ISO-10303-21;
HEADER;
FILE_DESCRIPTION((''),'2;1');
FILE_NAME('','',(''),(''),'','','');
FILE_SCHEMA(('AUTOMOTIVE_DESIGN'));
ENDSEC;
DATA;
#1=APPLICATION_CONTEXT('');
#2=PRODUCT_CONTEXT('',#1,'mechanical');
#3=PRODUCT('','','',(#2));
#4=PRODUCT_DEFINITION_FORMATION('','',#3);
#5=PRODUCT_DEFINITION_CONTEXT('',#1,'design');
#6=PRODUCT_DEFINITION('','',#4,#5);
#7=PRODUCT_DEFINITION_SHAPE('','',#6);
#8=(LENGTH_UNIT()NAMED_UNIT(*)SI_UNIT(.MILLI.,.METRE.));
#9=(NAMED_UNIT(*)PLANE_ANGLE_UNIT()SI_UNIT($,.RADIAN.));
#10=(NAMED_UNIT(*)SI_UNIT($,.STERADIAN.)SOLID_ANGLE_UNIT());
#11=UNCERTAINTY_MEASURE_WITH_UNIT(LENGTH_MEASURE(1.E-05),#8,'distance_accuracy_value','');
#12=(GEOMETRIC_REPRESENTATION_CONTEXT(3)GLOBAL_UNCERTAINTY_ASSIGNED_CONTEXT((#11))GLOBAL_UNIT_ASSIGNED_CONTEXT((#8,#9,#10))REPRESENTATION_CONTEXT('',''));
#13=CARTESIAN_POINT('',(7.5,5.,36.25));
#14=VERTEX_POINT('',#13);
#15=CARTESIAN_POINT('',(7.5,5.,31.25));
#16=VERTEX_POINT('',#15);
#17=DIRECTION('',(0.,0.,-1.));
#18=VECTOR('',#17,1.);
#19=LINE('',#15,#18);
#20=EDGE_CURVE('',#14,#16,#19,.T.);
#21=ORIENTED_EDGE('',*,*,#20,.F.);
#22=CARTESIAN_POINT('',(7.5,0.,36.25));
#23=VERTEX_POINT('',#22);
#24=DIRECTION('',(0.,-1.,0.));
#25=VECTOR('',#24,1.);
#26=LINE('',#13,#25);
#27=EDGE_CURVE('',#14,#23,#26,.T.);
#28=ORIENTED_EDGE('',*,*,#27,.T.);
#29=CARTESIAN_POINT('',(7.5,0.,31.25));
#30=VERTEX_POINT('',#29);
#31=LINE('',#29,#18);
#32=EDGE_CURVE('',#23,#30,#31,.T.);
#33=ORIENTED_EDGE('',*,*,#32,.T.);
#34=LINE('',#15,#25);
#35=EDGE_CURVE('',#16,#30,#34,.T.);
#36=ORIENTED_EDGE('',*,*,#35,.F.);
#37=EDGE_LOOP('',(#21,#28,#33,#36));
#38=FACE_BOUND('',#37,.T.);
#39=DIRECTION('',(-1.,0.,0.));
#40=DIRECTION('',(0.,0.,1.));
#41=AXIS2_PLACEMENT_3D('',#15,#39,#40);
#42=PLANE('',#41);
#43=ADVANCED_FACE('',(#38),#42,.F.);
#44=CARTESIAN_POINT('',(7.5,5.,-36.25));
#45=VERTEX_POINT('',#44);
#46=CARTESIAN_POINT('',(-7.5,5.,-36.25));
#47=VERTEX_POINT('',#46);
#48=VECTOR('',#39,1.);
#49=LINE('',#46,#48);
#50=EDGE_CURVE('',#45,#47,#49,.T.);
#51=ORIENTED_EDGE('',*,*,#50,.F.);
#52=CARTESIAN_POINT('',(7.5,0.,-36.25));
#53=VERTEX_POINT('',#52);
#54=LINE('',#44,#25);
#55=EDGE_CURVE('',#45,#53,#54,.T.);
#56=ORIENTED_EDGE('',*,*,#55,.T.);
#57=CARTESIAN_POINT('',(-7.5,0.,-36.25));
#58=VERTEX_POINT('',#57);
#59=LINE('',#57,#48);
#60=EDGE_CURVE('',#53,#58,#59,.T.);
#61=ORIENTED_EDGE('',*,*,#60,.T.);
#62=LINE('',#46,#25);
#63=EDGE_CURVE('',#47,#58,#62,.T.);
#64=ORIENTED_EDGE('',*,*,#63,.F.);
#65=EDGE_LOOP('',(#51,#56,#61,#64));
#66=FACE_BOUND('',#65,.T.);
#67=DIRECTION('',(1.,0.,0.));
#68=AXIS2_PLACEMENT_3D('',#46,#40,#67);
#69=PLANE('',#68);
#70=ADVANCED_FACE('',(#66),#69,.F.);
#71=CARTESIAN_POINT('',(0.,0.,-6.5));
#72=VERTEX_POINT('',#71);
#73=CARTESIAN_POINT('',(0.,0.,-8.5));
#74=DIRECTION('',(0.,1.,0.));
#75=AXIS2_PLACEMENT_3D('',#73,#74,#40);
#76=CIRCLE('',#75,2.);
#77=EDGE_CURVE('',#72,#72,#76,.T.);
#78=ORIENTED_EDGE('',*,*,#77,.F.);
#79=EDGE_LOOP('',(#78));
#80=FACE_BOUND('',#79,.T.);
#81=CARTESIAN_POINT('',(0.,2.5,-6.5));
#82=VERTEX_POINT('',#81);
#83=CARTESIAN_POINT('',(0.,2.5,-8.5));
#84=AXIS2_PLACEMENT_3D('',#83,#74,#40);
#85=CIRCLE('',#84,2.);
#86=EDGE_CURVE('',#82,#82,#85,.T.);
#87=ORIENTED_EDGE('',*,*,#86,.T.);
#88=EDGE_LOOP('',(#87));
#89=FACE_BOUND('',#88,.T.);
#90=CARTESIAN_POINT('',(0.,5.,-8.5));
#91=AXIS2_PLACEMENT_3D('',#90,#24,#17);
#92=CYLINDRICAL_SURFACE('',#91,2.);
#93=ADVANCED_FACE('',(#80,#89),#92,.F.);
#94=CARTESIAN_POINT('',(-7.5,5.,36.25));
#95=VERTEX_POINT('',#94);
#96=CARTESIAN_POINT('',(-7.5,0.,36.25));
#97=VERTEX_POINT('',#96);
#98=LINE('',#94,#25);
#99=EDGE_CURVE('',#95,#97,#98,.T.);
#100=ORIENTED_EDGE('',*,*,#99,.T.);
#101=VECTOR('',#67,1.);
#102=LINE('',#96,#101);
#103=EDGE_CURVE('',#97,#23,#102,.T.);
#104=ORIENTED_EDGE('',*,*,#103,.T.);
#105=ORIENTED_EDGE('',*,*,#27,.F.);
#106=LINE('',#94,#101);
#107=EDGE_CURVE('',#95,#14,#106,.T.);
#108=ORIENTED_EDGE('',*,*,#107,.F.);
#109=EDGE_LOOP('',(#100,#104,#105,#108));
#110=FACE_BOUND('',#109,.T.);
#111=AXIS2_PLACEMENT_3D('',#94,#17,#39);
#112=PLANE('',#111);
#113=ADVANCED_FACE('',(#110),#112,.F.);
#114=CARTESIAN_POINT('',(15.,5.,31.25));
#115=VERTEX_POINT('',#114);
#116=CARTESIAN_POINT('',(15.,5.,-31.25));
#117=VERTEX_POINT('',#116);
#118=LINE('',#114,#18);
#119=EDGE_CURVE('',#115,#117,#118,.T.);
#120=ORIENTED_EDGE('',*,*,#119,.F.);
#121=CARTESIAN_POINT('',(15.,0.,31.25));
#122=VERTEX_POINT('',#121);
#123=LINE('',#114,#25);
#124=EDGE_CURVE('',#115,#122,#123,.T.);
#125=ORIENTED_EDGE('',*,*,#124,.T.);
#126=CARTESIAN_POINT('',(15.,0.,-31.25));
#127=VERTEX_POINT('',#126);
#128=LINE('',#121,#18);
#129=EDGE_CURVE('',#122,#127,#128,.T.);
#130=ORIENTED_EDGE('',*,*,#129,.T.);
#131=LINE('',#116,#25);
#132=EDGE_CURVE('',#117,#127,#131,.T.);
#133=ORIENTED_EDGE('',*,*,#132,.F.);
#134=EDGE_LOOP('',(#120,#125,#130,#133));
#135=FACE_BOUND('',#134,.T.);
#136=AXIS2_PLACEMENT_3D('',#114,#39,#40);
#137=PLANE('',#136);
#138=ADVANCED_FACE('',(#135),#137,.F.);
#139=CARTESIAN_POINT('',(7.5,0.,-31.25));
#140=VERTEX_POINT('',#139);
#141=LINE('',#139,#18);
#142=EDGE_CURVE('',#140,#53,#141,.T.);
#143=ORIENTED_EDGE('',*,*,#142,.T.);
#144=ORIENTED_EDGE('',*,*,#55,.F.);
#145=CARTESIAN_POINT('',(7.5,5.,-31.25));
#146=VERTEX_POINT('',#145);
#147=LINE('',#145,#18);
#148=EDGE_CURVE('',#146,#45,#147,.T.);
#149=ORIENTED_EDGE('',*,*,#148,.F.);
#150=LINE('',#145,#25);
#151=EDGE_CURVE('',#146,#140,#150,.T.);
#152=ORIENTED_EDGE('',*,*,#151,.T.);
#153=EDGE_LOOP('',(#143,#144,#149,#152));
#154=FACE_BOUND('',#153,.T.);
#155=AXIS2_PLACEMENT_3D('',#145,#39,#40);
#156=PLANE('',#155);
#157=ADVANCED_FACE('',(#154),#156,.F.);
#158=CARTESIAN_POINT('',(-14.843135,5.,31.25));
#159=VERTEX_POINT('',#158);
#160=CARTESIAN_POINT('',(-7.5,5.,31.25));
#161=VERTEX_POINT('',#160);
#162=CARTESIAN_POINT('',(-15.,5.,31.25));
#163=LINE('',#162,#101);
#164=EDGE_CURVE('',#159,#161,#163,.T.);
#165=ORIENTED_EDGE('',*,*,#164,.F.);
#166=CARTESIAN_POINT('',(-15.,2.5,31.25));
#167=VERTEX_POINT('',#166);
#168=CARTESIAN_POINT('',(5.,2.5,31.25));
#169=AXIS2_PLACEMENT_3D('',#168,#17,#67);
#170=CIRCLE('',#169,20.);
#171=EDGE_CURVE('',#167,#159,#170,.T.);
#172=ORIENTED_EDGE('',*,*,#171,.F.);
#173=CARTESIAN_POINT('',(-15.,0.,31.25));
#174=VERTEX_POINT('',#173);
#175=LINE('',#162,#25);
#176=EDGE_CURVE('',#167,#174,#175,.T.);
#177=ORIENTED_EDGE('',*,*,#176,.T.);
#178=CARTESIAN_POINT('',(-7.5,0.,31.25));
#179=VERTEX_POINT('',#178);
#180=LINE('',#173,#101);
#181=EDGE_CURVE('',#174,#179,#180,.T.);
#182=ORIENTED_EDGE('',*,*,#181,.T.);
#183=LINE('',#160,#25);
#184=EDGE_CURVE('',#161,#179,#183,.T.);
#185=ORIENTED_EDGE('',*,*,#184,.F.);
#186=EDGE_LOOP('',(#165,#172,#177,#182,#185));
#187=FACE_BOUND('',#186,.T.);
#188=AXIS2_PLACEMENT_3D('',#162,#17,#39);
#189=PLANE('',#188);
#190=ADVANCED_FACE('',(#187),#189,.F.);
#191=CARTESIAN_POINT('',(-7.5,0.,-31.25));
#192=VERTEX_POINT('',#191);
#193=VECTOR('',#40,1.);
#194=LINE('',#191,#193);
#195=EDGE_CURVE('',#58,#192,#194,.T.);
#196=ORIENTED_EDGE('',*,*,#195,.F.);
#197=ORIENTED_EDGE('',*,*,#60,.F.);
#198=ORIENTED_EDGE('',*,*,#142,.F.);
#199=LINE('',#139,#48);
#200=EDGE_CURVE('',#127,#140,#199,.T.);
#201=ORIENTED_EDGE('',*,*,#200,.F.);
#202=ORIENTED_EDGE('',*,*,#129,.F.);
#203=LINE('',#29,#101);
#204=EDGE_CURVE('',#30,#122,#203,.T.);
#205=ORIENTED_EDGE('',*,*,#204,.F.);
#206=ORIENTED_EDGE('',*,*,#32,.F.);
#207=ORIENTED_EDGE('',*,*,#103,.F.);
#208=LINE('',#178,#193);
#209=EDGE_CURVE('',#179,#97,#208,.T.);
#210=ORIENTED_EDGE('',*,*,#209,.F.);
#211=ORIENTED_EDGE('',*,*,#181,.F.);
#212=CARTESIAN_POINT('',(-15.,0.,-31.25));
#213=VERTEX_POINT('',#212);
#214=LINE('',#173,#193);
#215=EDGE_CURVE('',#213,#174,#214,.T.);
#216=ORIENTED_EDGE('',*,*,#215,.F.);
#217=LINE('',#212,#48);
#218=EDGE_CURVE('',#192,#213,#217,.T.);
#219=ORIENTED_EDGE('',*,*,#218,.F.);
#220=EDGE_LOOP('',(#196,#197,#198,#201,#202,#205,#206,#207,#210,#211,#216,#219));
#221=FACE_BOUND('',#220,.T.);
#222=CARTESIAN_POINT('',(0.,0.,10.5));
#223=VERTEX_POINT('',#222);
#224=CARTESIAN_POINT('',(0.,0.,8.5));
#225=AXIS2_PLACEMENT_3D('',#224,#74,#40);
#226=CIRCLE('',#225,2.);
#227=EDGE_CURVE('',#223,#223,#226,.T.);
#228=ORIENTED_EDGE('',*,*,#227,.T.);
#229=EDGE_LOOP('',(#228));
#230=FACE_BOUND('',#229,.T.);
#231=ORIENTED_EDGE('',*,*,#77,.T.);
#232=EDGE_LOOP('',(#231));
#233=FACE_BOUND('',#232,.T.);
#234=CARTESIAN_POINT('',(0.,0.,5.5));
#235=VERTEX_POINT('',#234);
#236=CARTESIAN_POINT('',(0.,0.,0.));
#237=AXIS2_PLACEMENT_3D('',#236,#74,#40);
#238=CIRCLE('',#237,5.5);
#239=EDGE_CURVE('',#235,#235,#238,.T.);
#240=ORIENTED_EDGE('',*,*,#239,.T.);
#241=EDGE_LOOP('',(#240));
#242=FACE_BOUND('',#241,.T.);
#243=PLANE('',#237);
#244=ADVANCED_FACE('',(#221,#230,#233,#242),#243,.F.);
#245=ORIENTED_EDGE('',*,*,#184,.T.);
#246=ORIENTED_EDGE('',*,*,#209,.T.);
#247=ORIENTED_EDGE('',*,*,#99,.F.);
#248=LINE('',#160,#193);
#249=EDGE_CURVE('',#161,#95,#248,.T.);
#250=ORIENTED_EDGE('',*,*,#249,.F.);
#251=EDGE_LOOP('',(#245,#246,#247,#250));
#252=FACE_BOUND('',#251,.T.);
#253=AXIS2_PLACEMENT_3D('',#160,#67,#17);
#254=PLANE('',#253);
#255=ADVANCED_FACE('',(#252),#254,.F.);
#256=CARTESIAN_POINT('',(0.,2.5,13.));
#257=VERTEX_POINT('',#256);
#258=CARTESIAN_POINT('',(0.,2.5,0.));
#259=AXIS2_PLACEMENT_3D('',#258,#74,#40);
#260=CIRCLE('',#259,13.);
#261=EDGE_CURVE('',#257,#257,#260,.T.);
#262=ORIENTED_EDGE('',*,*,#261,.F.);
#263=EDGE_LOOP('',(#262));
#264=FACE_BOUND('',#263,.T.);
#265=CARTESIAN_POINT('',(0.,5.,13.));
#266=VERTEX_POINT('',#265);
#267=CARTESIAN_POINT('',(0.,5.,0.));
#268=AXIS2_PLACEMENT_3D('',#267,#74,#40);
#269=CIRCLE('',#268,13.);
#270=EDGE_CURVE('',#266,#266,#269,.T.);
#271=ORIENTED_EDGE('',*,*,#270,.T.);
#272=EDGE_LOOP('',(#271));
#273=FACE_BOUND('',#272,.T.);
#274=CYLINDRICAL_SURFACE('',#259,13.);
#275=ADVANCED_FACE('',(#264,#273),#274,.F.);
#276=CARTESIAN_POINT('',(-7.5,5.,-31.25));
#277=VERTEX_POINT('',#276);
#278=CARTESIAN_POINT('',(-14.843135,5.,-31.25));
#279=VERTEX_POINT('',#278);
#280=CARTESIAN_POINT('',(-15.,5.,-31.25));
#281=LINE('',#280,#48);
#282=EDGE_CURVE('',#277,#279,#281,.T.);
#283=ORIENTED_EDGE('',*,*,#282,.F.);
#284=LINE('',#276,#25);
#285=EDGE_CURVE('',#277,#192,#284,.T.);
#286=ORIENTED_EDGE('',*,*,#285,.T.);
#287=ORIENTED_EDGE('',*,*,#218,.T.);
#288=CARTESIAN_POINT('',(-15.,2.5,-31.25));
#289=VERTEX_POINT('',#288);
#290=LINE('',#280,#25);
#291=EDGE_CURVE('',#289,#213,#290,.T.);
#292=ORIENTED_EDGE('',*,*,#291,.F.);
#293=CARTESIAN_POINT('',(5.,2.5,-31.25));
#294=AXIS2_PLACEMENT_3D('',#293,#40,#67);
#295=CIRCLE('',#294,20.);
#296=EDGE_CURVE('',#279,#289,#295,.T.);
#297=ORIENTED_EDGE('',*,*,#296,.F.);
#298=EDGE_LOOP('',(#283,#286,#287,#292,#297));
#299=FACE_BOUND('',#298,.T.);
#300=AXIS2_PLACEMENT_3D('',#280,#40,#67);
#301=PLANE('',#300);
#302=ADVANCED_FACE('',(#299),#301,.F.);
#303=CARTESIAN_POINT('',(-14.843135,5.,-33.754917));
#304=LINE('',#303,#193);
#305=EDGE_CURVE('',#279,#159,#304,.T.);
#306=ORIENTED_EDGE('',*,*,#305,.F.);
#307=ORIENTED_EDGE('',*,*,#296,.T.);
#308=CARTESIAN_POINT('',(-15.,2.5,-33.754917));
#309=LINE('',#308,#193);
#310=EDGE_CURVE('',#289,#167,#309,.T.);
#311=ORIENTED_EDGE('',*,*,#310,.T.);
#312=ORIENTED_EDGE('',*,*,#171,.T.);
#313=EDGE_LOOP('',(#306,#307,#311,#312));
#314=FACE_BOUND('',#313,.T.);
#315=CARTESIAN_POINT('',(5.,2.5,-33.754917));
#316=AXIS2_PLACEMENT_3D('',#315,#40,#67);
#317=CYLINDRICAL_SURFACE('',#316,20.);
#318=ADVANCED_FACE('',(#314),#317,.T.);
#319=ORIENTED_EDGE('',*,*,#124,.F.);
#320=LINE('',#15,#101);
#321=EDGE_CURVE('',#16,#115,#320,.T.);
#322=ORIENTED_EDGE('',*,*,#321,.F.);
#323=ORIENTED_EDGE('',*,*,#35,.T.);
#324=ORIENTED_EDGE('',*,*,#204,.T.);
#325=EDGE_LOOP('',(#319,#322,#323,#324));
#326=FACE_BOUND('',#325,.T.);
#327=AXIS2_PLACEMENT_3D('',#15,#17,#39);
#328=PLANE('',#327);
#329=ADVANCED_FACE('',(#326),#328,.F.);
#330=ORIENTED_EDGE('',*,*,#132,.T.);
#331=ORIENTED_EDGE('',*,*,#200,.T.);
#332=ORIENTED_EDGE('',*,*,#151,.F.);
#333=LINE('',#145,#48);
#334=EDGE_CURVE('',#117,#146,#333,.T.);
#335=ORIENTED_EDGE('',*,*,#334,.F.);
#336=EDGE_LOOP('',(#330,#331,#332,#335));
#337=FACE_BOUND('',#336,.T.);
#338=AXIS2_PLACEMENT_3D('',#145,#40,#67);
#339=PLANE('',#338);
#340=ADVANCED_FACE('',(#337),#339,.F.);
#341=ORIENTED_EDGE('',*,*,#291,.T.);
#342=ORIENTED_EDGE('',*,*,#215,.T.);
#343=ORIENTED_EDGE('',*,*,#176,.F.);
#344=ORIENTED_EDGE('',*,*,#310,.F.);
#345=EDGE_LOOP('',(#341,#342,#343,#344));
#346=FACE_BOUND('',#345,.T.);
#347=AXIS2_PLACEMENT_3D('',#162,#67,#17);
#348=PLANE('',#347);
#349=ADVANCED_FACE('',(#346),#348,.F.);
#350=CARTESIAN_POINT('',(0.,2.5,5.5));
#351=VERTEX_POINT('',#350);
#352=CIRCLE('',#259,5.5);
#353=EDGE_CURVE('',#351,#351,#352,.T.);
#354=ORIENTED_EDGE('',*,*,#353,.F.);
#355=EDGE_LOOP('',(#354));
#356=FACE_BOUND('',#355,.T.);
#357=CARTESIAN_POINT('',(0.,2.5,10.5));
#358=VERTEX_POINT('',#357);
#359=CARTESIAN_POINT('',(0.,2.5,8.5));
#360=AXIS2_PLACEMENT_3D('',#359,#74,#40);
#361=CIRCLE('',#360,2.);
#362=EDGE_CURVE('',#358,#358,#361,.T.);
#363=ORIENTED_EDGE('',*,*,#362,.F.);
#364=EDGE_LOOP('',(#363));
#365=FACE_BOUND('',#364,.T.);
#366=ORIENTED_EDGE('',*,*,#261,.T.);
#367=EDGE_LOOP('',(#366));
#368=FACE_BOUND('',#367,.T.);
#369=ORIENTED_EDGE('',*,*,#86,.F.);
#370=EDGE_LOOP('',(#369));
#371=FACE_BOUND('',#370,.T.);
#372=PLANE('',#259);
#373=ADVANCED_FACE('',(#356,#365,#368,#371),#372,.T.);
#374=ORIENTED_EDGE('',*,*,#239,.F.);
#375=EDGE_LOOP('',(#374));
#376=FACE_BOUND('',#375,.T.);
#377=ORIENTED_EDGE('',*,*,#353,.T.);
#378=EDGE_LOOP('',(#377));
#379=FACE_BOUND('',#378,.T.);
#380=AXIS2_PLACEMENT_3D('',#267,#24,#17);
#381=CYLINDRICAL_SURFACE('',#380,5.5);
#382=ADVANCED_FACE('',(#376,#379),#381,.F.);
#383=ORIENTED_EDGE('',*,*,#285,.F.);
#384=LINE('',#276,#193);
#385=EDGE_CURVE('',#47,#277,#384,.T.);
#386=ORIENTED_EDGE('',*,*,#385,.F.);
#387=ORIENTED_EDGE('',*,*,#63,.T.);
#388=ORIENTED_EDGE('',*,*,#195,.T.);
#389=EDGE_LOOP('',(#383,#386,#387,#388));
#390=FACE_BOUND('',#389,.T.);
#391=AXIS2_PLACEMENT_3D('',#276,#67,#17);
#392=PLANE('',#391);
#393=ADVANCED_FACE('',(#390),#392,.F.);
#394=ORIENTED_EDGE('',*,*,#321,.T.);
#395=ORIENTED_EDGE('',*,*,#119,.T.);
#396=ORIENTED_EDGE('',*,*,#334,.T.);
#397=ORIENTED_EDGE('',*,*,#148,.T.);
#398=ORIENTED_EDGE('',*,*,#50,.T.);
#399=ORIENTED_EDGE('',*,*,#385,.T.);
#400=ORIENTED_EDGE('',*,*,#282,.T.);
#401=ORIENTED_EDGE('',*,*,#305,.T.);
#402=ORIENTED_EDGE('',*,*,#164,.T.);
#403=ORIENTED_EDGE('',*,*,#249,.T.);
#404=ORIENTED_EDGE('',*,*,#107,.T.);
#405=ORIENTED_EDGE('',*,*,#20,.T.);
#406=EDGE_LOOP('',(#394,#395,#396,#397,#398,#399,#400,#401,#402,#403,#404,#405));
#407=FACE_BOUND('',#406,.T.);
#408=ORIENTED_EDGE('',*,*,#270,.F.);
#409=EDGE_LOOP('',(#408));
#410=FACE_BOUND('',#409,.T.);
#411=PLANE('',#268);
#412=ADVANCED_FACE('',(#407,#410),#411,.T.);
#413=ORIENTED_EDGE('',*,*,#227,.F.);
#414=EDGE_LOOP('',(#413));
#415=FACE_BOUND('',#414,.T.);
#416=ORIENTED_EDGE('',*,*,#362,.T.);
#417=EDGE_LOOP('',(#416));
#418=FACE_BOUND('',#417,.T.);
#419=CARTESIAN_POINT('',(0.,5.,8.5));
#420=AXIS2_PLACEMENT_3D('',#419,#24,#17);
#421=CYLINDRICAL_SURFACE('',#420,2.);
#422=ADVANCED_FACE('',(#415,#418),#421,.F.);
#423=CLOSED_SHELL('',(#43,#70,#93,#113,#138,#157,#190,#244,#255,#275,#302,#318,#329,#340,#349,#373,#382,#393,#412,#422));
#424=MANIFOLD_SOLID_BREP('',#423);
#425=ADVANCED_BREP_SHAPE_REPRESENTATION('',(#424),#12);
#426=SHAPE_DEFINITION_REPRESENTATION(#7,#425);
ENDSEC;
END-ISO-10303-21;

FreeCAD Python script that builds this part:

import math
import FreeCAD as App
import Part
import Sketcher

V = App.Vector
Q = App.Units.Quantity


def add_polygon(sketch, points):
    """Adds a closed chain of lines whose ends are joined by coincident constraints."""
    first, n = sketch.GeometryCount, len(points)
    for a, b in zip(points, points[1:] + points[:1]):
        sketch.addGeometry(Part.LineSegment(App.Vector(*a, 0), App.Vector(*b, 0)), False)
    for i in range(n):
        sketch.addConstraint(Sketcher.Constraint("Coincident", first + i, 2, first + (i + 1) % n, 1))

doc = App.newDocument("Part")
body = doc.addObject("PartDesign::Body", "Body")

sketch1 = body.newObject("Sketcher::SketchObject", "Sketch")
sketch1.AttachmentSupport = (doc.getObject("XZ_Plane"), [""])
sketch1.MapMode = "FlatFace"
add_polygon(sketch1, [(7.5, 31.2), (15, 31.2), (15, -31.2), (7.5, -31.2), (7.5, -36.2), (-7.5, -36.2), (-7.5, -31.2), (-15, -31.2), (-15, 31.2), (-7.5, 31.2), (-7.5, 36.2), (7.5, 36.2)])
sketch1.addGeometry(Part.Circle(V(0, 8.5, 0), V(0, 0, 1), 2), False)
sketch1.addGeometry(Part.Circle(V(0, 0, 0), V(0, 0, 1), 5.5), False)
sketch1.addGeometry(Part.Circle(V(0, -8.5, 0), V(0, 0, 1), 2), False)
sketch1.addConstraint([
    Sketcher.Constraint("Horizontal", 0),
    Sketcher.Constraint("Vertical", 1),
    Sketcher.Constraint("Horizontal", 2),
    Sketcher.Constraint("Vertical", 3),
    Sketcher.Constraint("Horizontal", 4),
    Sketcher.Constraint("Vertical", 5),
    Sketcher.Constraint("Horizontal", 6),
    Sketcher.Constraint("Vertical", 7),
    Sketcher.Constraint("Horizontal", 8),
    Sketcher.Constraint("Vertical", 9),
    Sketcher.Constraint("Horizontal", 10),
    Sketcher.Constraint("Vertical", 11),
    Sketcher.Constraint("Coincident", 13, 3, -1, 1),
    Sketcher.Constraint("Equal", 12, 14),
    Sketcher.Constraint("Symmetric", 12, 3, 14, 3, -1, 1),
    Sketcher.Constraint("Symmetric", 0, 2, 6, 2, -1, 1),
    Sketcher.Constraint("Symmetric", 2, 2, 8, 2, -1, 1),
    Sketcher.Constraint("Symmetric", 4, 2, 10, 2, -1, 1),
    Sketcher.Constraint("Symmetric", 2, 2, 5, 2, -2),
    Sketcher.Constraint("PointOnObject", 12, 3, -2),
    Sketcher.Constraint("Diameter", 12, Q("4 mm")),
    Sketcher.Constraint("Diameter", 13, Q("11 mm")),
    Sketcher.Constraint("DistanceX", 4, 2, 4, 1, Q("15 mm")),
    Sketcher.Constraint("DistanceY", 3, 2, 3, 1, Q("5 mm")),
    Sketcher.Constraint("DistanceX", 0, 1, 0, 2, Q("7.5 mm")),
    Sketcher.Constraint("DistanceY", 1, 2, 1, 1, Q("62.5 mm")),
    Sketcher.Constraint("DistanceY", 14, 3, 12, 3, Q("17 mm")),
])
pad1 = body.newObject("PartDesign::Pad", "Pad")
pad1.Profile = sketch1
pad1.Length = 5
pad1.Reversed = True

sketch2 = body.newObject("Sketcher::SketchObject", "Sketch001")
sketch2.AttachmentSupport = (doc.getObject("XZ_Plane"), [""])
sketch2.MapMode = "FlatFace"
sketch2.AttachmentOffset = App.Placement(V(0, 0, -5), App.Rotation())
sketch2.addGeometry(Part.Circle(V(0, 0, 0), V(0, 0, 1), 13), False)
sketch2.addConstraint([
    Sketcher.Constraint("Coincident", 0, 3, -1, 1),
    Sketcher.Constraint("Diameter", 0, Q("26 mm")),
])
pocket1 = body.newObject("PartDesign::Pocket", "Pocket")
pocket1.Profile = sketch2
pocket1.Length = 2.5
pocket1.Reversed = True

sketch3 = body.newObject("Sketcher::SketchObject", "Sketch002")
sketch3.AttachmentSupport = (doc.getObject("XY_Plane"), [""])
sketch3.MapMode = "FlatFace"
sketch3.AttachmentOffset = App.Placement(V(0, 0, 31.25), App.Rotation())
sketch3.addGeometry([
    Part.LineSegment(V(-15, 5, 0), V(-15, 2.5, 0)),
    Part.ArcOfCircle(Part.Circle(V(5, 2.5, 0), V(0, 0, 1), 20), math.radians(172.82), math.radians(180)),
    Part.LineSegment(V(-14.84, 5, 0), V(-15, 5, 0)),
], False)
sketch3.addConstraint([
    Sketcher.Constraint("Tangent", 0, 2, 1, 2),
    Sketcher.Constraint("Coincident", 1, 1, 2, 1),
    Sketcher.Constraint("Coincident", 2, 2, 0, 1),
    Sketcher.Constraint("Vertical", 0),
    Sketcher.Constraint("Horizontal", 2),
    Sketcher.Constraint("Radius", 1, Q("20 mm")),
    Sketcher.Constraint("DistanceY", 0, 2, 0, 1, Q("2.5 mm")),
    Sketcher.Constraint("DistanceX", -1, 1, 1, 3, Q("5 mm")),
    Sketcher.Constraint("DistanceY", -1, 1, 1, 1, Q("5 mm")),
])
pocket2 = body.newObject("PartDesign::Pocket", "Pocket001")
pocket2.Profile = sketch3
pocket2.Length = 62.5

doc.recompute()
